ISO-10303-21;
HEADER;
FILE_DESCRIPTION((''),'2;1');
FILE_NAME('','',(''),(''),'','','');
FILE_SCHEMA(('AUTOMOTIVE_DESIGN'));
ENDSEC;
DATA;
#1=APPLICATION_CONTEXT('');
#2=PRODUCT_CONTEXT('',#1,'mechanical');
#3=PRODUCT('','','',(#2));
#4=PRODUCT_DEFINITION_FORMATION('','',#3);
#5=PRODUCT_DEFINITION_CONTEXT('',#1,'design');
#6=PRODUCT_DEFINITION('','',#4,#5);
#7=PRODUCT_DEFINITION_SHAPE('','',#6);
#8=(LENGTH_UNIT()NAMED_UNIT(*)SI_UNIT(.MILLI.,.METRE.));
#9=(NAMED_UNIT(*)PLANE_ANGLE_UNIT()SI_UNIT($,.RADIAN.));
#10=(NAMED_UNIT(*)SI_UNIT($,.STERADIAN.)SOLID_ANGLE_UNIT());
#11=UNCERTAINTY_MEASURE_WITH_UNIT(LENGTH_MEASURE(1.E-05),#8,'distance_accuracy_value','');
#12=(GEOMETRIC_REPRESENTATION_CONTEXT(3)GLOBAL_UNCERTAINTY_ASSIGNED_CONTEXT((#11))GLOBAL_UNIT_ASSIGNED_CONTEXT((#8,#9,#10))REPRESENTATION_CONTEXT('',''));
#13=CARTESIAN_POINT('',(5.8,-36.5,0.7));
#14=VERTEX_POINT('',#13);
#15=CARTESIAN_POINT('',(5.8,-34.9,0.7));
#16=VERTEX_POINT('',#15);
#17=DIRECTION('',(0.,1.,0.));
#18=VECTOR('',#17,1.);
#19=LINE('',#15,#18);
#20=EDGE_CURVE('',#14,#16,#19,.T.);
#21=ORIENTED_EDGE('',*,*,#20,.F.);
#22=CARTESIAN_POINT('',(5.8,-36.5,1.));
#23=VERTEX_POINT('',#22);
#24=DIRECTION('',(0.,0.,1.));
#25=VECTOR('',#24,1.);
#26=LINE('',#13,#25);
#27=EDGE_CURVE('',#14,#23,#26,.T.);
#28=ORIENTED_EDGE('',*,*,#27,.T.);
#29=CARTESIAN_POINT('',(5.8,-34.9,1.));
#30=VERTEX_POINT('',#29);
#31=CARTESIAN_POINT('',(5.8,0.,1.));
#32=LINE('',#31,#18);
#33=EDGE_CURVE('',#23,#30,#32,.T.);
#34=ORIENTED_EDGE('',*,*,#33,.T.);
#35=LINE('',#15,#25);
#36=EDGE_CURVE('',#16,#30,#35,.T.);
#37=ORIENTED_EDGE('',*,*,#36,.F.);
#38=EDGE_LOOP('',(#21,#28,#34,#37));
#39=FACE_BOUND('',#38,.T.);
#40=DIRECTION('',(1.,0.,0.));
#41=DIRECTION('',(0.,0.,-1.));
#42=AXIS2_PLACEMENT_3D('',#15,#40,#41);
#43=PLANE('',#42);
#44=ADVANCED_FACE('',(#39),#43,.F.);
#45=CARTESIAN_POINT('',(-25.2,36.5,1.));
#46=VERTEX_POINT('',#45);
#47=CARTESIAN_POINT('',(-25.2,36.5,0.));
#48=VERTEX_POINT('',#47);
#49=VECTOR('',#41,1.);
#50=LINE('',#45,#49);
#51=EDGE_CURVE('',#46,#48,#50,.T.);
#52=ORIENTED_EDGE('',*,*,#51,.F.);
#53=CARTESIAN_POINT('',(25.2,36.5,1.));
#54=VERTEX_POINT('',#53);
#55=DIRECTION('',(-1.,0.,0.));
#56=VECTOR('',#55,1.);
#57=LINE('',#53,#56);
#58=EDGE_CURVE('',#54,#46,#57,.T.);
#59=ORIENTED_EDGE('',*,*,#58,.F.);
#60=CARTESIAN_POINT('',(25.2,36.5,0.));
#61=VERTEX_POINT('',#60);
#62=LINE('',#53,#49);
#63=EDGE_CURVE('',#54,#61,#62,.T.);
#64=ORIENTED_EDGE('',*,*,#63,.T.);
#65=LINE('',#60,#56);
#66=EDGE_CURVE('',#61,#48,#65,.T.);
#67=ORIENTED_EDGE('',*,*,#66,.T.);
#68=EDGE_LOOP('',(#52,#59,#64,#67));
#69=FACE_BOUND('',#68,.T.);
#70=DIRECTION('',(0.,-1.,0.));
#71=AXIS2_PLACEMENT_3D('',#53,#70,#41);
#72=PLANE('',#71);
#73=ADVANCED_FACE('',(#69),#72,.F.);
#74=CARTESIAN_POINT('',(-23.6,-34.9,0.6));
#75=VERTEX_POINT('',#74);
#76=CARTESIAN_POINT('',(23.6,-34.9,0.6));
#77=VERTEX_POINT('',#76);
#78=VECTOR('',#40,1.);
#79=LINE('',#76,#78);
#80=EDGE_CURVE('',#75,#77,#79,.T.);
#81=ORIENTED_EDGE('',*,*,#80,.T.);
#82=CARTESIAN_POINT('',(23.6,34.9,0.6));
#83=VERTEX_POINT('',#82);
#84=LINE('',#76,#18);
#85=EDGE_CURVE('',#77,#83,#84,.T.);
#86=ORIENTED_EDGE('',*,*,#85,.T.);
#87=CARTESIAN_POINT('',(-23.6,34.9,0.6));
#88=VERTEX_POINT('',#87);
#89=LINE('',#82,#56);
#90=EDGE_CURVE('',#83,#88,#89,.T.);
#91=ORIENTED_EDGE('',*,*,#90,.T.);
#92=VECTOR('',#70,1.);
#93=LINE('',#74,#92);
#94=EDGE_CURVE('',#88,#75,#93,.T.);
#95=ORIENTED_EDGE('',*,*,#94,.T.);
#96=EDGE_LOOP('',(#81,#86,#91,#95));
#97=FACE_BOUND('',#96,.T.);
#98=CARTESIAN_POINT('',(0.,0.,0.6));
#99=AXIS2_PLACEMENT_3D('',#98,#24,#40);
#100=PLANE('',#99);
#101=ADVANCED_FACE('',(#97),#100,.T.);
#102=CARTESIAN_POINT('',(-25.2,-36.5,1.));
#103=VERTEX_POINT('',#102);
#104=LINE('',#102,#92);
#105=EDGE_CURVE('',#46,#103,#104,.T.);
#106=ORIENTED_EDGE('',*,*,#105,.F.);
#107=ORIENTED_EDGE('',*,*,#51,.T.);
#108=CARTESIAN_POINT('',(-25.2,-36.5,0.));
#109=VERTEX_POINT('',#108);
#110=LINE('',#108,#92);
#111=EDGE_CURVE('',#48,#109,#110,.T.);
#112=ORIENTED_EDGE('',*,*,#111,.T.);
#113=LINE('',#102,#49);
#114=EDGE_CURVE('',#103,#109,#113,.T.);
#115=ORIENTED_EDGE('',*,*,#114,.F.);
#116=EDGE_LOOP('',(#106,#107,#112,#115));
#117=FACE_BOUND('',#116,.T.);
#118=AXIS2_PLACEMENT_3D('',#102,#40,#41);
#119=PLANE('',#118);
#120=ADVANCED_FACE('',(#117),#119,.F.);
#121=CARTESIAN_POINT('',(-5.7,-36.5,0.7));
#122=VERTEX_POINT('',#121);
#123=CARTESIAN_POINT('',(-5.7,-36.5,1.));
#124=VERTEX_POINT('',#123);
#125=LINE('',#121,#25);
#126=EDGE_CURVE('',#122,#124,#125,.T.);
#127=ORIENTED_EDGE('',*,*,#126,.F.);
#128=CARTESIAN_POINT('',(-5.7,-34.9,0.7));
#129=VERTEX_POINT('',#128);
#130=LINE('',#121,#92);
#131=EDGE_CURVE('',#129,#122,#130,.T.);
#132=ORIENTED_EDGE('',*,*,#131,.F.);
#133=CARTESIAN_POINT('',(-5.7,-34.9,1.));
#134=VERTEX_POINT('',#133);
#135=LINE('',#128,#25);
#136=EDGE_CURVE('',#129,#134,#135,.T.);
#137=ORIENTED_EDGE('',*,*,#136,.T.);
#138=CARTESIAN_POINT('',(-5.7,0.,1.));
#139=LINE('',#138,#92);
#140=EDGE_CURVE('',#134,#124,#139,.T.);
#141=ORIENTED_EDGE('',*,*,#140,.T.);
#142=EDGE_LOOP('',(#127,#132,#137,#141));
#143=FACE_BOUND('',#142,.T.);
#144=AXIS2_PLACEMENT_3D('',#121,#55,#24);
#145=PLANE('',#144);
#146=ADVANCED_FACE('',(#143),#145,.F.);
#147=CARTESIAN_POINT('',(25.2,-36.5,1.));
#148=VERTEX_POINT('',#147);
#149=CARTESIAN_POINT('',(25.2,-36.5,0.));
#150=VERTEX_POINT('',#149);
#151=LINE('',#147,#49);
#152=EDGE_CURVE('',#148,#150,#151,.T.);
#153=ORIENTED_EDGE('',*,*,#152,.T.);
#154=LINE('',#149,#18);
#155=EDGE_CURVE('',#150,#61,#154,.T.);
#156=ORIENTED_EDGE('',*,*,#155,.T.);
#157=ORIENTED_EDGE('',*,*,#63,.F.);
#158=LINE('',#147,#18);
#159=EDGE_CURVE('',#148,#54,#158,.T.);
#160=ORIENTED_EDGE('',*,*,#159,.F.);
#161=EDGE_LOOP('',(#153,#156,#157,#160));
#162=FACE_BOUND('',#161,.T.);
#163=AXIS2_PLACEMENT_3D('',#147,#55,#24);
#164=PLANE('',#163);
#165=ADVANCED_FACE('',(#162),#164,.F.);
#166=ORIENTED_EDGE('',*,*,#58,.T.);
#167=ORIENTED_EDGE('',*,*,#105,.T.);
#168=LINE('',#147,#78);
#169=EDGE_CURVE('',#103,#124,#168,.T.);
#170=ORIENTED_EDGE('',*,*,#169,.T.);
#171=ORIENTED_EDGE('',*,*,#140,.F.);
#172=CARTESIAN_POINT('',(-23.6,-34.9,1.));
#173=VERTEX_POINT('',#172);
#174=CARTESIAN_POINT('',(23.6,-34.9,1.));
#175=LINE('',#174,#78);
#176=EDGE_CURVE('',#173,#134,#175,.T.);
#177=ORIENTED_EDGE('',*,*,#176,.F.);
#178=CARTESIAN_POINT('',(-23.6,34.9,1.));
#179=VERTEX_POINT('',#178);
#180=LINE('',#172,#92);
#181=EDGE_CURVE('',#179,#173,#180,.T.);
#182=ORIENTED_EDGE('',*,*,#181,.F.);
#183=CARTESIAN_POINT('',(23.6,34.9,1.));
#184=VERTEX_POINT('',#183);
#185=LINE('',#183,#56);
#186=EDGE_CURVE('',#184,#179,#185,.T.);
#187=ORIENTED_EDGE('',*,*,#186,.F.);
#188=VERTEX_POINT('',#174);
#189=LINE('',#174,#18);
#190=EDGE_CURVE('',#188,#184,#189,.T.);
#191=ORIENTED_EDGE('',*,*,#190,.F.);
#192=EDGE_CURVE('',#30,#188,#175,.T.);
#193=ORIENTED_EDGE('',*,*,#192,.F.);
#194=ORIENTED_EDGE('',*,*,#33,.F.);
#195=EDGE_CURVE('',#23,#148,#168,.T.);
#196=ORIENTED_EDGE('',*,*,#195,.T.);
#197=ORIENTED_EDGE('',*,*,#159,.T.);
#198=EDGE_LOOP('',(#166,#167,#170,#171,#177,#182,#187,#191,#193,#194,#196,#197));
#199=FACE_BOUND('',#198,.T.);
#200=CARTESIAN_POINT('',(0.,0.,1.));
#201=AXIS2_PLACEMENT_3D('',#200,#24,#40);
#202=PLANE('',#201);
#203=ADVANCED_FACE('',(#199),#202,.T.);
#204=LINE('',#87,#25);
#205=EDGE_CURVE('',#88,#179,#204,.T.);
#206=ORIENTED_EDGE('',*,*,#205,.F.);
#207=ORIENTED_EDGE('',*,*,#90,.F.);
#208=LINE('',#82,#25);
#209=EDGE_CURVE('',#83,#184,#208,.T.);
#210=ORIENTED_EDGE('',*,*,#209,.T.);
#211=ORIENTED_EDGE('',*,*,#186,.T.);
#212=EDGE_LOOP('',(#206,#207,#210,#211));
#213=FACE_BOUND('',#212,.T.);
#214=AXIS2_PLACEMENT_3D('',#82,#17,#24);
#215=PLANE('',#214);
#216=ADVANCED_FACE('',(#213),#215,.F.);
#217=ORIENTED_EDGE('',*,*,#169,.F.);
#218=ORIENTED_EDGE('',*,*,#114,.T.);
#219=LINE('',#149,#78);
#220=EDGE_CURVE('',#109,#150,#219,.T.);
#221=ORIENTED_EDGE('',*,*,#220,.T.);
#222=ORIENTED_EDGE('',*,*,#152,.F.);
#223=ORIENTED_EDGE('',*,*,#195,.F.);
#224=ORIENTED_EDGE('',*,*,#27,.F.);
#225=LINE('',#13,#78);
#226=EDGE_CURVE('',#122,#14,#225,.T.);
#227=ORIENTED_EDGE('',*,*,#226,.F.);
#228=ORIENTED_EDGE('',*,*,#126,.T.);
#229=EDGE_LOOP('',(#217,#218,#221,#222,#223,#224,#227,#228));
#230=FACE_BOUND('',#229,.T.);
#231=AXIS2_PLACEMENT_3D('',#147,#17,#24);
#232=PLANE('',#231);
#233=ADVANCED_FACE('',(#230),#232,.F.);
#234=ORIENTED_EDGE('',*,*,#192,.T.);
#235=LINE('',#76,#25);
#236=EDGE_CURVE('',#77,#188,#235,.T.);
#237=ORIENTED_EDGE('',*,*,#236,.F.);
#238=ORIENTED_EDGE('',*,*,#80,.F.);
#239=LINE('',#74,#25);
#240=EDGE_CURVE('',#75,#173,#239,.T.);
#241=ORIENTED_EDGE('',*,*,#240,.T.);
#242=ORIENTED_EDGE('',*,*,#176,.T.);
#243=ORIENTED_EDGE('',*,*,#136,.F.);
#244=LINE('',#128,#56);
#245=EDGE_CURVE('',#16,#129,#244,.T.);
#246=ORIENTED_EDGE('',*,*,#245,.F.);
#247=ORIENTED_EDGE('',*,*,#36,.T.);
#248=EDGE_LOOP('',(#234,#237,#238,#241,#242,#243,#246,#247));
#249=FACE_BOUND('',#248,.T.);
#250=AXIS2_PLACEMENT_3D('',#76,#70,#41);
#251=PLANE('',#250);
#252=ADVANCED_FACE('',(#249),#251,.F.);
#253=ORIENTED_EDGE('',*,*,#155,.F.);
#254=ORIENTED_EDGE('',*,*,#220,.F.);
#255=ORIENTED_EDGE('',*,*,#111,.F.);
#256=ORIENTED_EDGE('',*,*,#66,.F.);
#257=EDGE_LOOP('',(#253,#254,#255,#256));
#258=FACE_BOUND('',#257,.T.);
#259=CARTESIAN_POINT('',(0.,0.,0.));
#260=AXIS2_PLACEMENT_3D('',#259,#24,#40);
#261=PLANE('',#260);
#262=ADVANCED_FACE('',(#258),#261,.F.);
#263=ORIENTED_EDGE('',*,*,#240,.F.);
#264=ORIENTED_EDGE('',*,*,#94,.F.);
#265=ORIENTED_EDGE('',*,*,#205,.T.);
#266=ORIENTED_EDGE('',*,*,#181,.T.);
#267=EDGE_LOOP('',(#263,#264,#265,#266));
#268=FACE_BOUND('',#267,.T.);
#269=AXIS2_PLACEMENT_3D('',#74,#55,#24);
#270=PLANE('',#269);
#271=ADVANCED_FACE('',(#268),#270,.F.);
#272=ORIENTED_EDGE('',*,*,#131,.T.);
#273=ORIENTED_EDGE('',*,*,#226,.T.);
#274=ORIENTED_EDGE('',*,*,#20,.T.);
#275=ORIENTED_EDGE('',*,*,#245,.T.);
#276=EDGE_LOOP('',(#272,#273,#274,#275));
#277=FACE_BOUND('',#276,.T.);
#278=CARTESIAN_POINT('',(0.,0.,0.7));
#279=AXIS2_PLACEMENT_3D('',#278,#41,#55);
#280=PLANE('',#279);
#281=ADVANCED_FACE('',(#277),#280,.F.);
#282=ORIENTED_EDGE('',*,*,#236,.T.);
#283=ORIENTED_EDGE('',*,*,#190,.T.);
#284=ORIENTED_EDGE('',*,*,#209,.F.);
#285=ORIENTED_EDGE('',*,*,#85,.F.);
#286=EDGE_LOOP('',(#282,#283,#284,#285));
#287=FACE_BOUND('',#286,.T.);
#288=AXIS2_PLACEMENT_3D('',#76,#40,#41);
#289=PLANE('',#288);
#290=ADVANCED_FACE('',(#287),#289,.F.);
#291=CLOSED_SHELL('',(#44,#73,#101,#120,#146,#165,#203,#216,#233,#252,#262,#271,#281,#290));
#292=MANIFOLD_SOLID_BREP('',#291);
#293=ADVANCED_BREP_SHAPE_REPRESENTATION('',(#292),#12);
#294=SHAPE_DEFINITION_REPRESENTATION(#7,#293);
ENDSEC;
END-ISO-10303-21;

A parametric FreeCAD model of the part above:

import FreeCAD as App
import Part
import Sketcher
from FreeCAD import Vector


def add_polygon(sketch, points):
    """Adds a closed chain of lines whose ends are joined by coincident constraints."""
    first, n = sketch.GeometryCount, len(points)
    for a, b in zip(points, points[1:] + points[:1]):
        sketch.addGeometry(Part.LineSegment(App.Vector(*a, 0), App.Vector(*b, 0)), False)
    for i in range(n):
        sketch.addConstraint(Sketcher.Constraint("Coincident", first + i, 2, first + (i + 1) % n, 1))

doc = App.newDocument("Part")
body = doc.addObject("PartDesign::Body", "Body")

# Sketch on XY plane
sketch1 = doc.addObject("Sketcher::SketchObject", "Sketch")
body.addObject(sketch1)
sketch1.AttachmentSupport = (doc.XY_Plane, [""])
sketch1.MapMode = "FlatFace"
add_polygon(sketch1, [(-25.2, 36.5), (-25.2, -36.5), (25.2, -36.5), (25.2, 36.5)])  # lines 0-3
sketch1.addConstraint(Sketcher.Constraint("Vertical", 0))
sketch1.addConstraint(Sketcher.Constraint("Horizontal", 1))
sketch1.addConstraint(Sketcher.Constraint("Vertical", 2))
sketch1.addConstraint(Sketcher.Constraint("Horizontal", 3))
sketch1.addConstraint(Sketcher.Constraint("Symmetric", 0, 2, 2, 2, -1, 1))
sketch1.addConstraint(Sketcher.Constraint("DistanceY", 0, 2, 0, 1, 73.0))
sketch1.addConstraint(Sketcher.Constraint("DistanceX", 1, 1, 1, 2, 50.4))
pad1 = doc.addObject("PartDesign::Pad", "Pad")
body.addObject(pad1)
pad1.Profile = sketch1
pad1.Length = 1

# Sketch on XY plane
sketch2 = doc.addObject("Sketcher::SketchObject", "Sketch001")
body.addObject(sketch2)
sketch2.AttachmentSupport = (doc.XY_Plane, [""])
sketch2.MapMode = "FlatFace"
sketch2.AttachmentOffset = App.Placement(Vector(0, 0, 1), App.Rotation())
add_polygon(sketch2, [(-23.6, 34.9), (-23.6, -34.9), (23.6, -34.9), (23.6, 34.9)])  # lines 0-3
sketch2.addConstraint(Sketcher.Constraint("Vertical", 0))
sketch2.addConstraint(Sketcher.Constraint("Horizontal", 1))
sketch2.addConstraint(Sketcher.Constraint("Vertical", 2))
sketch2.addConstraint(Sketcher.Constraint("Horizontal", 3))
sketch2.addConstraint(Sketcher.Constraint("Symmetric", 0, 2, 2, 2, -1, 1))
sketch2.addConstraint(Sketcher.Constraint("DistanceX", 1, 1, 1, 2, 47.2))
sketch2.addConstraint(Sketcher.Constraint("DistanceY", 0, 2, 0, 1, 69.8))
pocket1 = doc.addObject("PartDesign::Pocket", "Pocket")
body.addObject(pocket1)
pocket1.Profile = sketch2
pocket1.Length = 0.4

# Sketch on XY plane
sketch3 = doc.addObject("Sketcher::SketchObject", "Sketch002")
body.addObject(sketch3)
sketch3.AttachmentSupport = (doc.XY_Plane, [""])
sketch3.MapMode = "FlatFace"
sketch3.AttachmentOffset = App.Placement(Vector(0, 0, 1.6), App.Rotation())
add_polygon(sketch3, [(-5.7, -34.9), (-5.7, -36.5), (5.8, -36.5), (5.8, -34.9)])  # lines 0-3
sketch3.addConstraint(Sketcher.Constraint("Vertical", 0))
sketch3.addConstraint(Sketcher.Constraint("Horizontal", 1))
sketch3.addConstraint(Sketcher.Constraint("Vertical", 2))
sketch3.addConstraint(Sketcher.Constraint("Horizontal", 3))
sketch3.addConstraint(Sketcher.Constraint("DistanceX", 1, 1, 1, 2, 11.5))
sketch3.addConstraint(Sketcher.Constraint("DistanceY", 0, 2, 0, 1, 1.6))
sketch3.addConstraint(Sketcher.Constraint("DistanceX", 0, 2, -1, 1, 5.7))
sketch3.addConstraint(Sketcher.Constraint("DistanceY", 0, 2, -1, 1, 36.5))
pocket2 = doc.addObject("PartDesign::Pocket", "Pocket001")
body.addObject(pocket2)
pocket2.Profile = sketch3
pocket2.Length = 0.9

doc.recompute()
